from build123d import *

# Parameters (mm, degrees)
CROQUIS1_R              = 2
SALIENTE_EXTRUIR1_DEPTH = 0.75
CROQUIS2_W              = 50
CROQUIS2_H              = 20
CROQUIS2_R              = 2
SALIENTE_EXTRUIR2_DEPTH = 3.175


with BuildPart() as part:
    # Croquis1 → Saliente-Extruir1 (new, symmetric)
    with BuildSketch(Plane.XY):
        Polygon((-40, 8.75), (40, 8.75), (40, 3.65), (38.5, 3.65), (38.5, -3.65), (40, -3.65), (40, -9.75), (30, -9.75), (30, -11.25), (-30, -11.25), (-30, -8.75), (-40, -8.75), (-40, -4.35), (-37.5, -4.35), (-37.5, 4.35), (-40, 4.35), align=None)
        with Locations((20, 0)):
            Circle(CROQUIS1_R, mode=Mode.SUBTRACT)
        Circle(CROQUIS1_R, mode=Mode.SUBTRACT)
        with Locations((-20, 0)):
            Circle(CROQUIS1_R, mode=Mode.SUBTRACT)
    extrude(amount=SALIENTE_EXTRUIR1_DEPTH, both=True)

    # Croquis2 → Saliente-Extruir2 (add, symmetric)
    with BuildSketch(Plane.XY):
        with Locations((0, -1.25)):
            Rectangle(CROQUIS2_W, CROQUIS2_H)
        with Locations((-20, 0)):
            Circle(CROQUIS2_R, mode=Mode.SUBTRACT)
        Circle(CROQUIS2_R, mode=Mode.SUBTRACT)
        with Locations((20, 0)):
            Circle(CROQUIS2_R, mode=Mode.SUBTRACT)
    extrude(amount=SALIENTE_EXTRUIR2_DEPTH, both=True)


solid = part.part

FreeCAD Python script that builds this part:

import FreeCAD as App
import Part
import Sketcher

V = App.Vector
Q = App.Units.Quantity


def add_polygon(sketch, points):
    """Adds a closed chain of lines whose ends are joined by coincident constraints."""
    first, n = sketch.GeometryCount, len(points)
    for a, b in zip(points, points[1:] + points[:1]):
        sketch.addGeometry(Part.LineSegment(App.Vector(*a, 0), App.Vector(*b, 0)), False)
    for i in range(n):
        sketch.addConstraint(Sketcher.Constraint("Coincident", first + i, 2, first + (i + 1) % n, 1))

doc = App.newDocument("Part")
body = doc.addObject("PartDesign::Body", "Body")

# Sketch on XY plane
sketch1 = body.newObject("Sketcher::SketchObject", "Sketch")
sketch1.AttachmentSupport = (doc.getObject("XY_Plane"), [""])
sketch1.MapMode = "FlatFace"
add_polygon(sketch1, [(40, 8.8), (-40, 8.8), (-40, 4.3), (-37.5, 4.3), (-37.5, -4.3), (-40, -4.3), (-40, -8.8), (-30, -8.8), (-30, -11.2), (30, -11.2), (30, -9.8), (40, -9.8), (40, -3.6), (38.5, -3.6), (38.5, 3.6), (40, 3.6)])  # lines 0-15
sketch1.addGeometry(Part.Circle(V(20, 0, 0), V(0, 0, 1), 2), False)  # 16
sketch1.addGeometry(Part.Circle(V(0, 0, 0), V(0, 0, 1), 2), False)  # 17
sketch1.addGeometry(Part.Circle(V(-20, 0, 0), V(0, 0, 1), 2), False)  # 18
sketch1.addConstraint(Sketcher.Constraint("Horizontal", 0))
sketch1.addConstraint(Sketcher.Constraint("Vertical", 1))
sketch1.addConstraint(Sketcher.Constraint("Horizontal", 2))
sketch1.addConstraint(Sketcher.Constraint("Vertical", 3))
sketch1.addConstraint(Sketcher.Constraint("Horizontal", 4))
sketch1.addConstraint(Sketcher.Constraint("Vertical", 5))
sketch1.addConstraint(Sketcher.Constraint("Horizontal", 6))
sketch1.addConstraint(Sketcher.Constraint("Vertical", 7))
sketch1.addConstraint(Sketcher.Constraint("Horizontal", 8))
sketch1.addConstraint(Sketcher.Constraint("Vertical", 9))
sketch1.addConstraint(Sketcher.Constraint("Horizontal", 10))
sketch1.addConstraint(Sketcher.Constraint("Vertical", 11))
sketch1.addConstraint(Sketcher.Constraint("Horizontal", 12))
sketch1.addConstraint(Sketcher.Constraint("Vertical", 13))
sketch1.addConstraint(Sketcher.Constraint("Horizontal", 14))
sketch1.addConstraint(Sketcher.Constraint("Vertical", 15))
sketch1.addConstraint(Sketcher.Constraint("Coincident", 17, 3, -1, 1))
sketch1.addConstraint(Sketcher.Constraint("Equal", 16, 17))
sketch1.addConstraint(Sketcher.Constraint("Equal", 17, 18))
sketch1.addConstraint(Sketcher.Constraint("Symmetric", 16, 3, 18, 3, -1, 1))
sketch1.addConstraint(Sketcher.Constraint("Symmetric", 5, 2, 15, 2, -1, 1))
sketch1.addConstraint(Sketcher.Constraint("Symmetric", 1, 2, 4, 2, -1))
sketch1.addConstraint(Sketcher.Constraint("Symmetric", 11, 2, 14, 2, -1))
sketch1.addConstraint(Sketcher.Constraint("PointOnObject", 16, 3, -1))
sketch1.addConstraint(Sketcher.Constraint("Equal", 6, 10))
sketch1.addConstraint(Sketcher.Constraint("Equal", 4, 7))
sketch1.addConstraint(Sketcher.Constraint("Equal", 14, 9))
sketch1.addConstraint(Sketcher.Constraint("Diameter", 16, Q("4 mm")))
sketch1.addConstraint(Sketcher.Constraint("DistanceX", 0, 2, 0, 1, Q("80 mm")))
sketch1.addConstraint(Sketcher.Constraint("DistanceX", 6, 1, 6, 2, Q("10 mm")))
sketch1.addConstraint(Sketcher.Constraint("DistanceX", 2, 1, 2, 2, Q("2.5 mm")))
sketch1.addConstraint(Sketcher.Constraint("DistanceX", 12, 2, 12, 1, Q("1.5 mm")))
sketch1.addConstraint(Sketcher.Constraint("DistanceY", 1, 2, 1, 1, Q("4.4 mm")))
sketch1.addConstraint(Sketcher.Constraint("DistanceY", 3, 2, 3, 1, Q("8.7 mm")))
sketch1.addConstraint(Sketcher.Constraint("DistanceY", 11, 1, 11, 2, Q("6.1 mm")))
sketch1.addConstraint(Sketcher.Constraint("DistanceX", -1, 1, 16, 3, Q("20 mm")))
pad1 = body.newObject("PartDesign::Pad", "Pad")
pad1.Profile = sketch1
pad1.Length = 1.5
pad1.Midplane = True

# Sketch on XY plane
sketch2 = body.newObject("Sketcher::SketchObject", "Sketch001")
sketch2.AttachmentSupport = (doc.getObject("XY_Plane"), [""])
sketch2.MapMode = "FlatFace"
add_polygon(sketch2, [(-25, 8.8), (-25, -11.2), (25, -11.2), (25, 8.8)])  # lines 0-3
sketch2.addGeometry(Part.Circle(V(-20, 0, 0), V(0, 0, 1), 2), False)  # 4
sketch2.addGeometry(Part.Circle(V(0, 0, 0), V(0, 0, 1), 2), False)  # 5
sketch2.addGeometry(Part.Circle(V(20, 0, 0), V(0, 0, 1), 2), False)  # 6
sketch2.addConstraint(Sketcher.Constraint("Vertical", 0))
sketch2.addConstraint(Sketcher.Constraint("Horizontal", 1))
sketch2.addConstraint(Sketcher.Constraint("Vertical", 2))
sketch2.addConstraint(Sketcher.Constraint("Horizontal", 3))
sketch2.addConstraint(Sketcher.Constraint("Coincident", 5, 3, -1, 1))
sketch2.addConstraint(Sketcher.Constraint("Equal", 4, 5))
sketch2.addConstraint(Sketcher.Constraint("Equal", 5, 6))
sketch2.addConstraint(Sketcher.Constraint("Symmetric", 4, 3, 6, 3, -1, 1))
sketch2.addConstraint(Sketcher.Constraint("PointOnObject", 4, 3, -1))
sketch2.addConstraint(Sketcher.Constraint("Diameter", 4, Q("4 mm")))
sketch2.addConstraint(Sketcher.Constraint("DistanceX", 1, 1, 1, 2, Q("50 mm")))
sketch2.addConstraint(Sketcher.Constraint("DistanceY", 0, 2, 0, 1, Q("20 mm")))
sketch2.addConstraint(Sketcher.Constraint("DistanceX", 4, 3, -1, 1, Q("20 mm")))
sketch2.addConstraint(Sketcher.Constraint("DistanceX", 0, 2, -1, 1, Q("25 mm")))
sketch2.addConstraint(Sketcher.Constraint("DistanceY", 0, 2, -1, 1, Q("11.25 mm")))
pad2 = body.newObject("PartDesign::Pad", "Pad001")
pad2.Profile = sketch2
pad2.Length = 6.35
pad2.Midplane = True

doc.recompute()
